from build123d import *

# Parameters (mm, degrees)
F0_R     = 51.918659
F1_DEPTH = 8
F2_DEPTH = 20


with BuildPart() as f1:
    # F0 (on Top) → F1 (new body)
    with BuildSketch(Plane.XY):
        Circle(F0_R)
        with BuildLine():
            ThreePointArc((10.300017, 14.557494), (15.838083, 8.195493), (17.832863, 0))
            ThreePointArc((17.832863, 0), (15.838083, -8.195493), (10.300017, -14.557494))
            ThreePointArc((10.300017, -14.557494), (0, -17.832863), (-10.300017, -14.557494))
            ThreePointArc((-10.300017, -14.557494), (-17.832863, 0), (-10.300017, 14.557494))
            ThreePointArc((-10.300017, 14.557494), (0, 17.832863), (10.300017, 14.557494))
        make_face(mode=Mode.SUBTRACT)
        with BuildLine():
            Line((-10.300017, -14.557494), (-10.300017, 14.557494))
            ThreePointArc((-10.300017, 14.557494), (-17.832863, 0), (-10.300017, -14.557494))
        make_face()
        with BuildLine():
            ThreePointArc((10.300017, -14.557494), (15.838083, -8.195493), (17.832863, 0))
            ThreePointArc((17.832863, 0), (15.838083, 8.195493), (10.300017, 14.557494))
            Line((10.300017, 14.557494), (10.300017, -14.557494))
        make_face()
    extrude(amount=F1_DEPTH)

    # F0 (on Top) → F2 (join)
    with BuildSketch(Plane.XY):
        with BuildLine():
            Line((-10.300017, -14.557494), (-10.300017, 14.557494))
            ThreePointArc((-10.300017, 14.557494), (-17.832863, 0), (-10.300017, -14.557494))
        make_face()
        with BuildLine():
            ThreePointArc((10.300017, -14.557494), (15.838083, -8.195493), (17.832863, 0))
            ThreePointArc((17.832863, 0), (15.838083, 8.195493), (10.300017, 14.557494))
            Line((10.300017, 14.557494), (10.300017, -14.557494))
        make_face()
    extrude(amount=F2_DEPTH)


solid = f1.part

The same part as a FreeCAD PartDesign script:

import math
import FreeCAD as App
import Part
import Sketcher

V = App.Vector
Q = App.Units.Quantity

doc = App.newDocument("Part")
body = doc.addObject("PartDesign::Body", "Body")

# Sketch on XY plane
sketch1 = body.newObject("Sketcher::SketchObject", "Sketch")
sketch1.AttachmentSupport = (doc.getObject("XY_Plane"), [""])
sketch1.MapMode = "FlatFace"
sketch1.addGeometry([
    Part.Circle(V(0, 0, 0), V(0, 0, 1), 51.918659),  # 0
    Part.ArcOfCircle(Part.Circle(V(0, 0.000003, 0), V(0, 0, 1), 17.83286), math.radians(54.71904), math.radians(125.28096)),  # 1
    Part.LineSegment(V(10.300017, 14.557494, 0), V(10.300017, -14.557494, 0)),  # 2
    Part.ArcOfCircle(Part.Circle(V(0, -0.000003, 0), V(0, 0, 1), 17.83286), math.radians(-125.28096), math.radians(-54.71904)),  # 3
    Part.LineSegment(V(-10.300017, -14.557494, 0), V(-10.300017, 14.557494, 0)),  # 4
], False)
sketch1.addConstraint([
    Sketcher.Constraint("Coincident", 1, 1, 2, 1),
    Sketcher.Constraint("Coincident", 2, 2, 3, 2),
    Sketcher.Constraint("Coincident", 3, 1, 4, 1),
    Sketcher.Constraint("Coincident", 4, 2, 1, 2),
    Sketcher.Constraint("Vertical", 2),
    Sketcher.Constraint("Vertical", 4),
    Sketcher.Constraint("Coincident", 0, 3, -1, 1),
    Sketcher.Constraint("Coincident", 1, 3, -1, 1),
    Sketcher.Constraint("Coincident", 3, 3, -1, 1),
    Sketcher.Constraint("Equal", 1, 3),
    Sketcher.Constraint("Horizontal", 2, 2, 3, 1),
    Sketcher.Constraint("Radius", 1, Q("17.83286 mm")),
    Sketcher.Constraint("Diameter", 0, Q("103.837318 mm")),
    Sketcher.Constraint("DistanceY", 2, 2, 2, 1, Q("29.114988 mm")),
])
pad1 = body.newObject("PartDesign::Pad", "Pad")
pad1.Profile = sketch1
pad1.Length = 8

# Sketch on XY plane
sketch2 = body.newObject("Sketcher::SketchObject", "Sketch001")
sketch2.AttachmentSupport = (doc.getObject("XY_Plane"), [""])
sketch2.MapMode = "FlatFace"
sketch2.addGeometry([
    Part.LineSegment(V(-10.300017, -14.557494, 0), V(-10.300017, 14.557494, 0)),  # 0
    Part.ArcOfCircle(Part.Circle(V(-0.000001, 0, 0), V(0, 0, 1), 17.832862), math.radians(125.280951), math.radians(234.719049)),  # 1
    Part.ArcOfCircle(Part.Circle(V(-0.000003, 0.000002, 0), V(0, 0, 1), 17.832866), math.radians(-54.719043), math.radians(-0.000007)),  # 2
    Part.ArcOfCircle(Part.Circle(V(-0.000003, -0.000002, 0), V(0, 0, 1), 17.832866), math.radians(0.000007), math.radians(54.719043)),  # 3
    Part.LineSegment(V(10.300017, 14.557494, 0), V(10.300017, -14.557494, 0)),  # 4
], False)
sketch2.addConstraint([
    Sketcher.Constraint("Coincident", 0, 1, 1, 2),
    Sketcher.Constraint("Coincident", 1, 1, 0, 2),
    Sketcher.Constraint("Tangent", 2, 2, 3, 1),
    Sketcher.Constraint("Coincident", 3, 2, 4, 1),
    Sketcher.Constraint("Coincident", 4, 2, 2, 1),
    Sketcher.Constraint("Vertical", 0),
    Sketcher.Constraint("Vertical", 4),
    Sketcher.Constraint("Coincident", 1, 3, -1, 1),
    Sketcher.Constraint("Coincident", 2, 3, -1, 1),
    Sketcher.Constraint("Equal", 2, 3),
    Sketcher.Constraint("Symmetric", 0, 1, 3, 2, -1, 1),
    Sketcher.Constraint("PointOnObject", 2, 2, -1),
    Sketcher.Constraint("Radius", 1, Q("17.832862 mm")),
    Sketcher.Constraint("DistanceY", 0, 1, 0, 2, Q("29.114988 mm")),
])
pad2 = body.newObject("PartDesign::Pad", "Pad001")
pad2.Profile = sketch2
pad2.Length = 20

doc.recompute()
